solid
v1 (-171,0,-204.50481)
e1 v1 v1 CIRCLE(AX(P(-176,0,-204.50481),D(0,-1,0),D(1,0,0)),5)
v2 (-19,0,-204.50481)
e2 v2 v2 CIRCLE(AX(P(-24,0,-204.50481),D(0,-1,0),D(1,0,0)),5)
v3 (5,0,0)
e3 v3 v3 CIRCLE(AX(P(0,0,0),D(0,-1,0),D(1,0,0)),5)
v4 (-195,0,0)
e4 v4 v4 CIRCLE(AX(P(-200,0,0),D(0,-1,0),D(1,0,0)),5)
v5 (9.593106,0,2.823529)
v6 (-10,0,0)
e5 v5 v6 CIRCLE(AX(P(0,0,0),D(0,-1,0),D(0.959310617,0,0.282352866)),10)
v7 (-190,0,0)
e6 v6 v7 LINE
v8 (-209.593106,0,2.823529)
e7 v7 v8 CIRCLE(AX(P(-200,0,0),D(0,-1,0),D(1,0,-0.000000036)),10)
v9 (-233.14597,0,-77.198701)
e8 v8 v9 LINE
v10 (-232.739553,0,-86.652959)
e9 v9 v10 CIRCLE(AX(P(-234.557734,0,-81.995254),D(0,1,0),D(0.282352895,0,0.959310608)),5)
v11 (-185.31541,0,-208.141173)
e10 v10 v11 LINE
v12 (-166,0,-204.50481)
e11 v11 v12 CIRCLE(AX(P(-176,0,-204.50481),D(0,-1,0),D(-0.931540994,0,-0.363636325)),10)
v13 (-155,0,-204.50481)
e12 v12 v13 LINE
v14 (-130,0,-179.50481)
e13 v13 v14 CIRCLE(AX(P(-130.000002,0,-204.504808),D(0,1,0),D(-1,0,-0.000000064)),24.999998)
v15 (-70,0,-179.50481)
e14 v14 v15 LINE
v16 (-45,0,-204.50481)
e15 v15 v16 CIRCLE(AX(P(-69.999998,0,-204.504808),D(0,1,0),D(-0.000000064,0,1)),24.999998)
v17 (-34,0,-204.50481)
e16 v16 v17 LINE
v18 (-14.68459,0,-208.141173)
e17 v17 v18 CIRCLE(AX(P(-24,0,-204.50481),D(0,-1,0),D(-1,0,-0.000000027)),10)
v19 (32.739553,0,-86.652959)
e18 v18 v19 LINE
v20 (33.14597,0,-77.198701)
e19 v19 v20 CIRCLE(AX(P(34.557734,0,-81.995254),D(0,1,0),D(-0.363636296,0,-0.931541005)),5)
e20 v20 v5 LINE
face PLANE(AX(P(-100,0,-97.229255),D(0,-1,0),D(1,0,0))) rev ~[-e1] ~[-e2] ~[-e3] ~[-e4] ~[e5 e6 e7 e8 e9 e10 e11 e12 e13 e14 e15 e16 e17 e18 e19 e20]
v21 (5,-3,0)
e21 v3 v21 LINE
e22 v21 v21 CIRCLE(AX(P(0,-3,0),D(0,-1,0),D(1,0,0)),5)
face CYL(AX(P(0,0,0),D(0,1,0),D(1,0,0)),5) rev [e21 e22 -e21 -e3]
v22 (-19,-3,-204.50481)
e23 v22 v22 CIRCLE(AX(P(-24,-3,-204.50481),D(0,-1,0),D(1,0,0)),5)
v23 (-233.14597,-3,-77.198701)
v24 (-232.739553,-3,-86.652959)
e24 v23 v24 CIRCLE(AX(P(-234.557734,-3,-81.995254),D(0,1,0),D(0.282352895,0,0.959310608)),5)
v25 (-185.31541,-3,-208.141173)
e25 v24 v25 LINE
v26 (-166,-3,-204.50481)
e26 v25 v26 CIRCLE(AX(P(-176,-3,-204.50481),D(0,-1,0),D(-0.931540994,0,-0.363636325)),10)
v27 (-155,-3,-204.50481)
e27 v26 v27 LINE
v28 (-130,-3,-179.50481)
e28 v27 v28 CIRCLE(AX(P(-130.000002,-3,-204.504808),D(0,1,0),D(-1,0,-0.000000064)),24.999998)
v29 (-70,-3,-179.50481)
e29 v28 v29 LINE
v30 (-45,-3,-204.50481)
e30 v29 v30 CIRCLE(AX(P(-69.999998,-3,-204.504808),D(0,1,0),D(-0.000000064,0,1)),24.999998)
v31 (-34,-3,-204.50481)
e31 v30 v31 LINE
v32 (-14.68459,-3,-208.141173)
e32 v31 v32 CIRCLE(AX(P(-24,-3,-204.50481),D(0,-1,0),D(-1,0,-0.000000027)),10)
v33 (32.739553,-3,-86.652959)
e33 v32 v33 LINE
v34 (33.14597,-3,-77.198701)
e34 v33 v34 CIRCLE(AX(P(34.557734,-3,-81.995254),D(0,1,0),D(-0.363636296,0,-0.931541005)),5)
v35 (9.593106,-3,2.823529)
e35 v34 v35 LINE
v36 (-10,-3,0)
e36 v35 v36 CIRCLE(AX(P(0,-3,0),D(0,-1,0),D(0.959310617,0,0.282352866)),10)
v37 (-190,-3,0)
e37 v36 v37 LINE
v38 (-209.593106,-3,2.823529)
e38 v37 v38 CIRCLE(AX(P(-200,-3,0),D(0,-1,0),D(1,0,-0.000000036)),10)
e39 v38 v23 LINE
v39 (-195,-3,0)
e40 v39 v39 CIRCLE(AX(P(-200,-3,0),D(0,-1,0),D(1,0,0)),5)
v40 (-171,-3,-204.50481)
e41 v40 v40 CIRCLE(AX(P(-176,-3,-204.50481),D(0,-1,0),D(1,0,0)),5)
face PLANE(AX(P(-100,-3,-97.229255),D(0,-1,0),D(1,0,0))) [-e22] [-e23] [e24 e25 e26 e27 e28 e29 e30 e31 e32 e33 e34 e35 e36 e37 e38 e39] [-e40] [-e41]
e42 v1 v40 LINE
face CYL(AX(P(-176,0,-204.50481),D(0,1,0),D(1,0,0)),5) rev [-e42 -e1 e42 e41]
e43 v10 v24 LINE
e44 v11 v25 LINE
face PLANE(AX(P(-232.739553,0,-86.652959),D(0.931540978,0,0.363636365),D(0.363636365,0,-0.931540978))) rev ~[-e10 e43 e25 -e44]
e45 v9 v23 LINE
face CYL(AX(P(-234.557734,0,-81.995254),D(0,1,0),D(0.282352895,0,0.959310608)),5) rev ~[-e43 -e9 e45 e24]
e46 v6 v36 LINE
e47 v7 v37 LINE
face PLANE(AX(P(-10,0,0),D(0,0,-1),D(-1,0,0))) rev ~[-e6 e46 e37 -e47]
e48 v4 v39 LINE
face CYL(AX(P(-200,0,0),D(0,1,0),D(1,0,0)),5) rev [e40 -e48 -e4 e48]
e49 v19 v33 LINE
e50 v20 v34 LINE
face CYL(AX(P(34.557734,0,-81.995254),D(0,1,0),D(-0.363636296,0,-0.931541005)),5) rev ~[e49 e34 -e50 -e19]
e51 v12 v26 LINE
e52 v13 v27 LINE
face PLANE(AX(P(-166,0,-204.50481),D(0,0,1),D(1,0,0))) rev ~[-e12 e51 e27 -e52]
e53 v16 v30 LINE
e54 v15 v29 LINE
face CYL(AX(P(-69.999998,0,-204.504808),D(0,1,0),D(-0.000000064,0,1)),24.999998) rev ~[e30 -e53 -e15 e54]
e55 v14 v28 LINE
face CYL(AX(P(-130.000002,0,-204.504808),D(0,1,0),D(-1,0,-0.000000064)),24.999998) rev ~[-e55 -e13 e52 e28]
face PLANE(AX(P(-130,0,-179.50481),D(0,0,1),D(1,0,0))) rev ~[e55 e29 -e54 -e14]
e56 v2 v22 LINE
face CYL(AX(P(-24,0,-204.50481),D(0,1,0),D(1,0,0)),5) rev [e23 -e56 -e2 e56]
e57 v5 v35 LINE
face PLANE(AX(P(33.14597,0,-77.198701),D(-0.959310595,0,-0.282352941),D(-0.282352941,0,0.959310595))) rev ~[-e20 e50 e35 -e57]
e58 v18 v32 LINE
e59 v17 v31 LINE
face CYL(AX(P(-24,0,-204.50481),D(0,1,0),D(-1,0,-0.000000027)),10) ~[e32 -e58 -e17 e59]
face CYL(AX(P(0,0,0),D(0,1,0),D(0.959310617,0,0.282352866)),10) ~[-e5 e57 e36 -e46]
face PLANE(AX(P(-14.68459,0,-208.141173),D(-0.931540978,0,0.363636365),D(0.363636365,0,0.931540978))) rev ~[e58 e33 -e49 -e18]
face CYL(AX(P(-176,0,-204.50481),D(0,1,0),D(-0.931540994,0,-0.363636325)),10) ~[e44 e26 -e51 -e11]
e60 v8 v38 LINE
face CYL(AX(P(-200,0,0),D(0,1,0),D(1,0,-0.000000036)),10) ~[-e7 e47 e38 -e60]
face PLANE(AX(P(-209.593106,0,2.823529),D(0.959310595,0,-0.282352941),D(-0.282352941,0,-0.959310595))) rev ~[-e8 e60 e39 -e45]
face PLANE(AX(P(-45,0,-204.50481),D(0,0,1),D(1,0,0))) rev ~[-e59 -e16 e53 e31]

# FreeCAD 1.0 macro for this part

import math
import FreeCAD as App
import Part
import Sketcher

V = App.Vector
Q = App.Units.Quantity

doc = App.newDocument("Part")
params = doc.addObject("Spreadsheet::Sheet", "Params")
for row, (alias, value) in enumerate([
    ("sketch1_diameter", "10 mm"),
    ("sketch1_diameter2", "10 mm"),
    ("sketch1_diameter3", "10 mm"),
    ("sketch1_diameter4", "10 mm"),
    ("sketch1_radius", "10 mm"),
    ("pad1_length", "3 mm"),
], start=1):
    params.set(f"A{row}", alias)
    params.set(f"B{row}", "=" + value)
    params.setAlias(f"B{row}", alias)

body = doc.addObject("PartDesign::Body", "Body")

# Sketch on XZ plane
sketch1 = doc.addObject("Sketcher::SketchObject", "Sketch")
body.addObject(sketch1)
sketch1.AttachmentSupport = (doc.XZ_Plane, [""])
sketch1.MapMode = "FlatFace"
sketch1.addGeometry([
    Part.LineSegment(V(-10, 0, 0), V(-190, 0, 0)),  # 0
    Part.ArcOfCircle(Part.Circle(V(-200, 0, 0), V(0, 0, 1), 10), math.radians(-0.000002), math.radians(163.599319)),  # 1
    Part.LineSegment(V(-209.593106, 2.823529, 0), V(-233.14597, -77.198701, 0)),  # 2
    Part.ArcOfCircle(Part.Circle(V(-234.557734, -81.995254, 0), V(0, 0, 1), 5), math.radians(-68.676318), math.radians(73.599317)),  # 3
    Part.LineSegment(V(-232.739553, -86.652959, 0), V(-185.31541, -208.141173, 0)),  # 4
    Part.ArcOfCircle(Part.Circle(V(-176, -204.50481, 0), V(0, 0, 1), 10), math.radians(-158.676316), math.radians(-0.000002)),  # 5
    Part.LineSegment(V(-166, -204.50481, 0), V(-155, -204.50481, 0)),  # 6
    Part.ArcOfCircle(Part.Circle(V(-130.000002, -204.504808, 0), V(0, 0, 1), 24.999998), math.radians(89.999996), math.radians(180.000004)),  # 7
    Part.LineSegment(V(-130, -179.50481, 0), V(-70, -179.50481, 0)),  # 8
    Part.ArcOfCircle(Part.Circle(V(-69.999998, -204.504808, 0), V(0, 0, 1), 24.999998), math.radians(-0.000004), math.radians(90.000004)),  # 9
    Part.LineSegment(V(-45, -204.50481, 0), V(-34, -204.50481, 0)),  # 10
    Part.ArcOfCircle(Part.Circle(V(-24, -204.50481, 0), V(0, 0, 1), 10), math.radians(-179.999998), math.radians(-21.323684)),  # 11
    Part.LineSegment(V(-14.68459, -208.141173, 0), V(32.739553, -86.652959, 0)),  # 12
    Part.ArcOfCircle(Part.Circle(V(34.557734, -81.995254, 0), V(0, 0, 1), 5), math.radians(106.400683), math.radians(248.676318)),  # 13
    Part.LineSegment(V(33.14597, -77.198701, 0), V(9.593106, 2.823529, 0)),  # 14
    Part.ArcOfCircle(Part.Circle(V(0, 0, 0), V(0, 0, 1), 10), math.radians(16.400681), math.radians(180.000002)),  # 15
    Part.Circle(V(-176, -204.50481, 0), V(0, 0, 1), 5),  # 16
    Part.Circle(V(-24, -204.50481, 0), V(0, 0, 1), 5),  # 17
    Part.Circle(V(-200, 0, 0), V(0, 0, 1), 5),  # 18
    Part.Circle(V(0, 0, 0), V(0, 0, 1), 5),  # 19
], False)
sketch1.addConstraint([
    Sketcher.Constraint("Coincident", 0, 2, 1, 1),
    Sketcher.Constraint("Coincident", 1, 2, 2, 1),
    Sketcher.Constraint("Coincident", 2, 2, 3, 2),
    Sketcher.Constraint("Coincident", 3, 1, 4, 1),
    Sketcher.Constraint("Coincident", 4, 2, 5, 1),
    Sketcher.Constraint("Coincident", 5, 2, 6, 1),
    Sketcher.Constraint("Coincident", 6, 2, 7, 2),
    Sketcher.Constraint("Coincident", 7, 1, 8, 1),
    Sketcher.Constraint("Coincident", 8, 2, 9, 2),
    Sketcher.Constraint("Coincident", 9, 1, 10, 1),
    Sketcher.Constraint("Coincident", 10, 2, 11, 1),
    Sketcher.Constraint("Coincident", 11, 2, 12, 1),
    Sketcher.Constraint("Coincident", 12, 2, 13, 2),
    Sketcher.Constraint("Coincident", 13, 1, 14, 1),
    Sketcher.Constraint("Coincident", 14, 2, 15, 1),
    Sketcher.Constraint("Coincident", 15, 2, 0, 1),
    Sketcher.Constraint("Horizontal", 0),
    Sketcher.Constraint("Horizontal", 6),
    Sketcher.Constraint("Horizontal", 8),
    Sketcher.Constraint("Horizontal", 10),
    Sketcher.Constraint("Coincident", 15, 3, -1, 1),
    Sketcher.Constraint("Coincident", 19, 3, -1, 1),
    Sketcher.Constraint("Coincident", 16, 3, 5, 3),
    Sketcher.Constraint("Coincident", 17, 3, 11, 3),
    Sketcher.Constraint("Coincident", 18, 3, 1, 3),
    Sketcher.Constraint("PointOnObject", 1, 3, -1),
    Sketcher.Constraint("PointOnObject", 0, 2, -1),
    Sketcher.Constraint("Diameter", 16, Q("10 mm")),
    Sketcher.Constraint("Diameter", 17, Q("10 mm")),
    Sketcher.Constraint("Diameter", 18, Q("10 mm")),
    Sketcher.Constraint("Diameter", 19, Q("10 mm")),
    Sketcher.Constraint("Radius", 1, Q("10 mm")),
    Sketcher.Constraint("Radius", 3, Q("5 mm")),
    Sketcher.Constraint("Radius", 5, Q("10 mm")),
    Sketcher.Constraint("Radius", 7, Q("24.999998 mm")),
    Sketcher.Constraint("Radius", 9, Q("24.999998 mm")),
    Sketcher.Constraint("Radius", 11, Q("10 mm")),
    Sketcher.Constraint("Radius", 13, Q("5 mm")),
    Sketcher.Constraint("Radius", 15, Q("10 mm")),
    Sketcher.Constraint("DistanceX", 0, 2, 0, 1, Q("180 mm")),
    Sketcher.Constraint("DistanceX", 6, 1, 6, 2, Q("11 mm")),
    Sketcher.Constraint("DistanceX", 8, 1, 8, 2, Q("60 mm")),
    Sketcher.Constraint("DistanceX", 10, 1, 10, 2, Q("11 mm")),
    Sketcher.Constraint("DistanceX", 5, 3, -1, 1, Q("176 mm")),
    Sketcher.Constraint("DistanceX", 9, 3, -1, 1, Q("69.999998 mm")),
    Sketcher.Constraint("DistanceX", 7, 1, -1, 1, Q("130 mm")),
    Sketcher.Constraint("DistanceY", 6, 2, 7, 1, Q("25 mm")),
    Sketcher.Constraint("DistanceY", 5, 3, 7, 1, Q("25 mm")),
    Sketcher.Constraint("DistanceY", 11, 3, 8, 2, Q("25 mm")),
    Sketcher.Constraint("DistanceY", 9, 1, 8, 2, Q("25 mm")),
    Sketcher.Constraint("DistanceY", 2, 2, -1, 1, Q("77.198701 mm")),
    Sketcher.Constraint("DistanceY", 13, 1, -1, 1, Q("77.198701 mm")),
    Sketcher.Constraint("DistanceY", 5, 3, -1, 1, Q("204.50481 mm")),
    Sketcher.Constraint("DistanceY", -1, 1, 1, 2, Q("2.823529 mm")),
    Sketcher.Constraint("DistanceX", 2, 2, -1, 1, Q("233.14597 mm")),
    Sketcher.Constraint("DistanceY", 3, 1, -1, 1, Q("86.652959 mm")),
    Sketcher.Constraint("DistanceX", 4, 2, -1, 1, Q("185.31541 mm")),
    Sketcher.Constraint("DistanceX", 11, 2, -1, 1, Q("14.68459 mm")),
    Sketcher.Constraint("DistanceY", 12, 2, -1, 1, Q("86.652959 mm")),
    Sketcher.Constraint("DistanceX", -1, 1, 13, 1, Q("33.14597 mm")),
    Sketcher.Constraint("DistanceY", -1, 1, 14, 2, Q("2.823529 mm")),
    Sketcher.Constraint("DistanceX", 3, 3, 1, 2, Q("24.964628 mm")),
    Sketcher.Constraint("DistanceX", 12, 2, 13, 3, Q("1.818181 mm")),
])
sketch1.setExpression("Constraints[27]", "Params.sketch1_diameter")
sketch1.setExpression("Constraints[28]", "Params.sketch1_diameter2")
sketch1.setExpression("Constraints[29]", "Params.sketch1_diameter3")
sketch1.setExpression("Constraints[30]", "Params.sketch1_diameter4")
sketch1.setExpression("Constraints[31]", "Params.sketch1_radius")
pad1 = doc.addObject("PartDesign::Pad", "Pad")
body.addObject(pad1)
pad1.Profile = sketch1
pad1.setExpression("Length", "Params.pad1_length")

doc.recompute()
